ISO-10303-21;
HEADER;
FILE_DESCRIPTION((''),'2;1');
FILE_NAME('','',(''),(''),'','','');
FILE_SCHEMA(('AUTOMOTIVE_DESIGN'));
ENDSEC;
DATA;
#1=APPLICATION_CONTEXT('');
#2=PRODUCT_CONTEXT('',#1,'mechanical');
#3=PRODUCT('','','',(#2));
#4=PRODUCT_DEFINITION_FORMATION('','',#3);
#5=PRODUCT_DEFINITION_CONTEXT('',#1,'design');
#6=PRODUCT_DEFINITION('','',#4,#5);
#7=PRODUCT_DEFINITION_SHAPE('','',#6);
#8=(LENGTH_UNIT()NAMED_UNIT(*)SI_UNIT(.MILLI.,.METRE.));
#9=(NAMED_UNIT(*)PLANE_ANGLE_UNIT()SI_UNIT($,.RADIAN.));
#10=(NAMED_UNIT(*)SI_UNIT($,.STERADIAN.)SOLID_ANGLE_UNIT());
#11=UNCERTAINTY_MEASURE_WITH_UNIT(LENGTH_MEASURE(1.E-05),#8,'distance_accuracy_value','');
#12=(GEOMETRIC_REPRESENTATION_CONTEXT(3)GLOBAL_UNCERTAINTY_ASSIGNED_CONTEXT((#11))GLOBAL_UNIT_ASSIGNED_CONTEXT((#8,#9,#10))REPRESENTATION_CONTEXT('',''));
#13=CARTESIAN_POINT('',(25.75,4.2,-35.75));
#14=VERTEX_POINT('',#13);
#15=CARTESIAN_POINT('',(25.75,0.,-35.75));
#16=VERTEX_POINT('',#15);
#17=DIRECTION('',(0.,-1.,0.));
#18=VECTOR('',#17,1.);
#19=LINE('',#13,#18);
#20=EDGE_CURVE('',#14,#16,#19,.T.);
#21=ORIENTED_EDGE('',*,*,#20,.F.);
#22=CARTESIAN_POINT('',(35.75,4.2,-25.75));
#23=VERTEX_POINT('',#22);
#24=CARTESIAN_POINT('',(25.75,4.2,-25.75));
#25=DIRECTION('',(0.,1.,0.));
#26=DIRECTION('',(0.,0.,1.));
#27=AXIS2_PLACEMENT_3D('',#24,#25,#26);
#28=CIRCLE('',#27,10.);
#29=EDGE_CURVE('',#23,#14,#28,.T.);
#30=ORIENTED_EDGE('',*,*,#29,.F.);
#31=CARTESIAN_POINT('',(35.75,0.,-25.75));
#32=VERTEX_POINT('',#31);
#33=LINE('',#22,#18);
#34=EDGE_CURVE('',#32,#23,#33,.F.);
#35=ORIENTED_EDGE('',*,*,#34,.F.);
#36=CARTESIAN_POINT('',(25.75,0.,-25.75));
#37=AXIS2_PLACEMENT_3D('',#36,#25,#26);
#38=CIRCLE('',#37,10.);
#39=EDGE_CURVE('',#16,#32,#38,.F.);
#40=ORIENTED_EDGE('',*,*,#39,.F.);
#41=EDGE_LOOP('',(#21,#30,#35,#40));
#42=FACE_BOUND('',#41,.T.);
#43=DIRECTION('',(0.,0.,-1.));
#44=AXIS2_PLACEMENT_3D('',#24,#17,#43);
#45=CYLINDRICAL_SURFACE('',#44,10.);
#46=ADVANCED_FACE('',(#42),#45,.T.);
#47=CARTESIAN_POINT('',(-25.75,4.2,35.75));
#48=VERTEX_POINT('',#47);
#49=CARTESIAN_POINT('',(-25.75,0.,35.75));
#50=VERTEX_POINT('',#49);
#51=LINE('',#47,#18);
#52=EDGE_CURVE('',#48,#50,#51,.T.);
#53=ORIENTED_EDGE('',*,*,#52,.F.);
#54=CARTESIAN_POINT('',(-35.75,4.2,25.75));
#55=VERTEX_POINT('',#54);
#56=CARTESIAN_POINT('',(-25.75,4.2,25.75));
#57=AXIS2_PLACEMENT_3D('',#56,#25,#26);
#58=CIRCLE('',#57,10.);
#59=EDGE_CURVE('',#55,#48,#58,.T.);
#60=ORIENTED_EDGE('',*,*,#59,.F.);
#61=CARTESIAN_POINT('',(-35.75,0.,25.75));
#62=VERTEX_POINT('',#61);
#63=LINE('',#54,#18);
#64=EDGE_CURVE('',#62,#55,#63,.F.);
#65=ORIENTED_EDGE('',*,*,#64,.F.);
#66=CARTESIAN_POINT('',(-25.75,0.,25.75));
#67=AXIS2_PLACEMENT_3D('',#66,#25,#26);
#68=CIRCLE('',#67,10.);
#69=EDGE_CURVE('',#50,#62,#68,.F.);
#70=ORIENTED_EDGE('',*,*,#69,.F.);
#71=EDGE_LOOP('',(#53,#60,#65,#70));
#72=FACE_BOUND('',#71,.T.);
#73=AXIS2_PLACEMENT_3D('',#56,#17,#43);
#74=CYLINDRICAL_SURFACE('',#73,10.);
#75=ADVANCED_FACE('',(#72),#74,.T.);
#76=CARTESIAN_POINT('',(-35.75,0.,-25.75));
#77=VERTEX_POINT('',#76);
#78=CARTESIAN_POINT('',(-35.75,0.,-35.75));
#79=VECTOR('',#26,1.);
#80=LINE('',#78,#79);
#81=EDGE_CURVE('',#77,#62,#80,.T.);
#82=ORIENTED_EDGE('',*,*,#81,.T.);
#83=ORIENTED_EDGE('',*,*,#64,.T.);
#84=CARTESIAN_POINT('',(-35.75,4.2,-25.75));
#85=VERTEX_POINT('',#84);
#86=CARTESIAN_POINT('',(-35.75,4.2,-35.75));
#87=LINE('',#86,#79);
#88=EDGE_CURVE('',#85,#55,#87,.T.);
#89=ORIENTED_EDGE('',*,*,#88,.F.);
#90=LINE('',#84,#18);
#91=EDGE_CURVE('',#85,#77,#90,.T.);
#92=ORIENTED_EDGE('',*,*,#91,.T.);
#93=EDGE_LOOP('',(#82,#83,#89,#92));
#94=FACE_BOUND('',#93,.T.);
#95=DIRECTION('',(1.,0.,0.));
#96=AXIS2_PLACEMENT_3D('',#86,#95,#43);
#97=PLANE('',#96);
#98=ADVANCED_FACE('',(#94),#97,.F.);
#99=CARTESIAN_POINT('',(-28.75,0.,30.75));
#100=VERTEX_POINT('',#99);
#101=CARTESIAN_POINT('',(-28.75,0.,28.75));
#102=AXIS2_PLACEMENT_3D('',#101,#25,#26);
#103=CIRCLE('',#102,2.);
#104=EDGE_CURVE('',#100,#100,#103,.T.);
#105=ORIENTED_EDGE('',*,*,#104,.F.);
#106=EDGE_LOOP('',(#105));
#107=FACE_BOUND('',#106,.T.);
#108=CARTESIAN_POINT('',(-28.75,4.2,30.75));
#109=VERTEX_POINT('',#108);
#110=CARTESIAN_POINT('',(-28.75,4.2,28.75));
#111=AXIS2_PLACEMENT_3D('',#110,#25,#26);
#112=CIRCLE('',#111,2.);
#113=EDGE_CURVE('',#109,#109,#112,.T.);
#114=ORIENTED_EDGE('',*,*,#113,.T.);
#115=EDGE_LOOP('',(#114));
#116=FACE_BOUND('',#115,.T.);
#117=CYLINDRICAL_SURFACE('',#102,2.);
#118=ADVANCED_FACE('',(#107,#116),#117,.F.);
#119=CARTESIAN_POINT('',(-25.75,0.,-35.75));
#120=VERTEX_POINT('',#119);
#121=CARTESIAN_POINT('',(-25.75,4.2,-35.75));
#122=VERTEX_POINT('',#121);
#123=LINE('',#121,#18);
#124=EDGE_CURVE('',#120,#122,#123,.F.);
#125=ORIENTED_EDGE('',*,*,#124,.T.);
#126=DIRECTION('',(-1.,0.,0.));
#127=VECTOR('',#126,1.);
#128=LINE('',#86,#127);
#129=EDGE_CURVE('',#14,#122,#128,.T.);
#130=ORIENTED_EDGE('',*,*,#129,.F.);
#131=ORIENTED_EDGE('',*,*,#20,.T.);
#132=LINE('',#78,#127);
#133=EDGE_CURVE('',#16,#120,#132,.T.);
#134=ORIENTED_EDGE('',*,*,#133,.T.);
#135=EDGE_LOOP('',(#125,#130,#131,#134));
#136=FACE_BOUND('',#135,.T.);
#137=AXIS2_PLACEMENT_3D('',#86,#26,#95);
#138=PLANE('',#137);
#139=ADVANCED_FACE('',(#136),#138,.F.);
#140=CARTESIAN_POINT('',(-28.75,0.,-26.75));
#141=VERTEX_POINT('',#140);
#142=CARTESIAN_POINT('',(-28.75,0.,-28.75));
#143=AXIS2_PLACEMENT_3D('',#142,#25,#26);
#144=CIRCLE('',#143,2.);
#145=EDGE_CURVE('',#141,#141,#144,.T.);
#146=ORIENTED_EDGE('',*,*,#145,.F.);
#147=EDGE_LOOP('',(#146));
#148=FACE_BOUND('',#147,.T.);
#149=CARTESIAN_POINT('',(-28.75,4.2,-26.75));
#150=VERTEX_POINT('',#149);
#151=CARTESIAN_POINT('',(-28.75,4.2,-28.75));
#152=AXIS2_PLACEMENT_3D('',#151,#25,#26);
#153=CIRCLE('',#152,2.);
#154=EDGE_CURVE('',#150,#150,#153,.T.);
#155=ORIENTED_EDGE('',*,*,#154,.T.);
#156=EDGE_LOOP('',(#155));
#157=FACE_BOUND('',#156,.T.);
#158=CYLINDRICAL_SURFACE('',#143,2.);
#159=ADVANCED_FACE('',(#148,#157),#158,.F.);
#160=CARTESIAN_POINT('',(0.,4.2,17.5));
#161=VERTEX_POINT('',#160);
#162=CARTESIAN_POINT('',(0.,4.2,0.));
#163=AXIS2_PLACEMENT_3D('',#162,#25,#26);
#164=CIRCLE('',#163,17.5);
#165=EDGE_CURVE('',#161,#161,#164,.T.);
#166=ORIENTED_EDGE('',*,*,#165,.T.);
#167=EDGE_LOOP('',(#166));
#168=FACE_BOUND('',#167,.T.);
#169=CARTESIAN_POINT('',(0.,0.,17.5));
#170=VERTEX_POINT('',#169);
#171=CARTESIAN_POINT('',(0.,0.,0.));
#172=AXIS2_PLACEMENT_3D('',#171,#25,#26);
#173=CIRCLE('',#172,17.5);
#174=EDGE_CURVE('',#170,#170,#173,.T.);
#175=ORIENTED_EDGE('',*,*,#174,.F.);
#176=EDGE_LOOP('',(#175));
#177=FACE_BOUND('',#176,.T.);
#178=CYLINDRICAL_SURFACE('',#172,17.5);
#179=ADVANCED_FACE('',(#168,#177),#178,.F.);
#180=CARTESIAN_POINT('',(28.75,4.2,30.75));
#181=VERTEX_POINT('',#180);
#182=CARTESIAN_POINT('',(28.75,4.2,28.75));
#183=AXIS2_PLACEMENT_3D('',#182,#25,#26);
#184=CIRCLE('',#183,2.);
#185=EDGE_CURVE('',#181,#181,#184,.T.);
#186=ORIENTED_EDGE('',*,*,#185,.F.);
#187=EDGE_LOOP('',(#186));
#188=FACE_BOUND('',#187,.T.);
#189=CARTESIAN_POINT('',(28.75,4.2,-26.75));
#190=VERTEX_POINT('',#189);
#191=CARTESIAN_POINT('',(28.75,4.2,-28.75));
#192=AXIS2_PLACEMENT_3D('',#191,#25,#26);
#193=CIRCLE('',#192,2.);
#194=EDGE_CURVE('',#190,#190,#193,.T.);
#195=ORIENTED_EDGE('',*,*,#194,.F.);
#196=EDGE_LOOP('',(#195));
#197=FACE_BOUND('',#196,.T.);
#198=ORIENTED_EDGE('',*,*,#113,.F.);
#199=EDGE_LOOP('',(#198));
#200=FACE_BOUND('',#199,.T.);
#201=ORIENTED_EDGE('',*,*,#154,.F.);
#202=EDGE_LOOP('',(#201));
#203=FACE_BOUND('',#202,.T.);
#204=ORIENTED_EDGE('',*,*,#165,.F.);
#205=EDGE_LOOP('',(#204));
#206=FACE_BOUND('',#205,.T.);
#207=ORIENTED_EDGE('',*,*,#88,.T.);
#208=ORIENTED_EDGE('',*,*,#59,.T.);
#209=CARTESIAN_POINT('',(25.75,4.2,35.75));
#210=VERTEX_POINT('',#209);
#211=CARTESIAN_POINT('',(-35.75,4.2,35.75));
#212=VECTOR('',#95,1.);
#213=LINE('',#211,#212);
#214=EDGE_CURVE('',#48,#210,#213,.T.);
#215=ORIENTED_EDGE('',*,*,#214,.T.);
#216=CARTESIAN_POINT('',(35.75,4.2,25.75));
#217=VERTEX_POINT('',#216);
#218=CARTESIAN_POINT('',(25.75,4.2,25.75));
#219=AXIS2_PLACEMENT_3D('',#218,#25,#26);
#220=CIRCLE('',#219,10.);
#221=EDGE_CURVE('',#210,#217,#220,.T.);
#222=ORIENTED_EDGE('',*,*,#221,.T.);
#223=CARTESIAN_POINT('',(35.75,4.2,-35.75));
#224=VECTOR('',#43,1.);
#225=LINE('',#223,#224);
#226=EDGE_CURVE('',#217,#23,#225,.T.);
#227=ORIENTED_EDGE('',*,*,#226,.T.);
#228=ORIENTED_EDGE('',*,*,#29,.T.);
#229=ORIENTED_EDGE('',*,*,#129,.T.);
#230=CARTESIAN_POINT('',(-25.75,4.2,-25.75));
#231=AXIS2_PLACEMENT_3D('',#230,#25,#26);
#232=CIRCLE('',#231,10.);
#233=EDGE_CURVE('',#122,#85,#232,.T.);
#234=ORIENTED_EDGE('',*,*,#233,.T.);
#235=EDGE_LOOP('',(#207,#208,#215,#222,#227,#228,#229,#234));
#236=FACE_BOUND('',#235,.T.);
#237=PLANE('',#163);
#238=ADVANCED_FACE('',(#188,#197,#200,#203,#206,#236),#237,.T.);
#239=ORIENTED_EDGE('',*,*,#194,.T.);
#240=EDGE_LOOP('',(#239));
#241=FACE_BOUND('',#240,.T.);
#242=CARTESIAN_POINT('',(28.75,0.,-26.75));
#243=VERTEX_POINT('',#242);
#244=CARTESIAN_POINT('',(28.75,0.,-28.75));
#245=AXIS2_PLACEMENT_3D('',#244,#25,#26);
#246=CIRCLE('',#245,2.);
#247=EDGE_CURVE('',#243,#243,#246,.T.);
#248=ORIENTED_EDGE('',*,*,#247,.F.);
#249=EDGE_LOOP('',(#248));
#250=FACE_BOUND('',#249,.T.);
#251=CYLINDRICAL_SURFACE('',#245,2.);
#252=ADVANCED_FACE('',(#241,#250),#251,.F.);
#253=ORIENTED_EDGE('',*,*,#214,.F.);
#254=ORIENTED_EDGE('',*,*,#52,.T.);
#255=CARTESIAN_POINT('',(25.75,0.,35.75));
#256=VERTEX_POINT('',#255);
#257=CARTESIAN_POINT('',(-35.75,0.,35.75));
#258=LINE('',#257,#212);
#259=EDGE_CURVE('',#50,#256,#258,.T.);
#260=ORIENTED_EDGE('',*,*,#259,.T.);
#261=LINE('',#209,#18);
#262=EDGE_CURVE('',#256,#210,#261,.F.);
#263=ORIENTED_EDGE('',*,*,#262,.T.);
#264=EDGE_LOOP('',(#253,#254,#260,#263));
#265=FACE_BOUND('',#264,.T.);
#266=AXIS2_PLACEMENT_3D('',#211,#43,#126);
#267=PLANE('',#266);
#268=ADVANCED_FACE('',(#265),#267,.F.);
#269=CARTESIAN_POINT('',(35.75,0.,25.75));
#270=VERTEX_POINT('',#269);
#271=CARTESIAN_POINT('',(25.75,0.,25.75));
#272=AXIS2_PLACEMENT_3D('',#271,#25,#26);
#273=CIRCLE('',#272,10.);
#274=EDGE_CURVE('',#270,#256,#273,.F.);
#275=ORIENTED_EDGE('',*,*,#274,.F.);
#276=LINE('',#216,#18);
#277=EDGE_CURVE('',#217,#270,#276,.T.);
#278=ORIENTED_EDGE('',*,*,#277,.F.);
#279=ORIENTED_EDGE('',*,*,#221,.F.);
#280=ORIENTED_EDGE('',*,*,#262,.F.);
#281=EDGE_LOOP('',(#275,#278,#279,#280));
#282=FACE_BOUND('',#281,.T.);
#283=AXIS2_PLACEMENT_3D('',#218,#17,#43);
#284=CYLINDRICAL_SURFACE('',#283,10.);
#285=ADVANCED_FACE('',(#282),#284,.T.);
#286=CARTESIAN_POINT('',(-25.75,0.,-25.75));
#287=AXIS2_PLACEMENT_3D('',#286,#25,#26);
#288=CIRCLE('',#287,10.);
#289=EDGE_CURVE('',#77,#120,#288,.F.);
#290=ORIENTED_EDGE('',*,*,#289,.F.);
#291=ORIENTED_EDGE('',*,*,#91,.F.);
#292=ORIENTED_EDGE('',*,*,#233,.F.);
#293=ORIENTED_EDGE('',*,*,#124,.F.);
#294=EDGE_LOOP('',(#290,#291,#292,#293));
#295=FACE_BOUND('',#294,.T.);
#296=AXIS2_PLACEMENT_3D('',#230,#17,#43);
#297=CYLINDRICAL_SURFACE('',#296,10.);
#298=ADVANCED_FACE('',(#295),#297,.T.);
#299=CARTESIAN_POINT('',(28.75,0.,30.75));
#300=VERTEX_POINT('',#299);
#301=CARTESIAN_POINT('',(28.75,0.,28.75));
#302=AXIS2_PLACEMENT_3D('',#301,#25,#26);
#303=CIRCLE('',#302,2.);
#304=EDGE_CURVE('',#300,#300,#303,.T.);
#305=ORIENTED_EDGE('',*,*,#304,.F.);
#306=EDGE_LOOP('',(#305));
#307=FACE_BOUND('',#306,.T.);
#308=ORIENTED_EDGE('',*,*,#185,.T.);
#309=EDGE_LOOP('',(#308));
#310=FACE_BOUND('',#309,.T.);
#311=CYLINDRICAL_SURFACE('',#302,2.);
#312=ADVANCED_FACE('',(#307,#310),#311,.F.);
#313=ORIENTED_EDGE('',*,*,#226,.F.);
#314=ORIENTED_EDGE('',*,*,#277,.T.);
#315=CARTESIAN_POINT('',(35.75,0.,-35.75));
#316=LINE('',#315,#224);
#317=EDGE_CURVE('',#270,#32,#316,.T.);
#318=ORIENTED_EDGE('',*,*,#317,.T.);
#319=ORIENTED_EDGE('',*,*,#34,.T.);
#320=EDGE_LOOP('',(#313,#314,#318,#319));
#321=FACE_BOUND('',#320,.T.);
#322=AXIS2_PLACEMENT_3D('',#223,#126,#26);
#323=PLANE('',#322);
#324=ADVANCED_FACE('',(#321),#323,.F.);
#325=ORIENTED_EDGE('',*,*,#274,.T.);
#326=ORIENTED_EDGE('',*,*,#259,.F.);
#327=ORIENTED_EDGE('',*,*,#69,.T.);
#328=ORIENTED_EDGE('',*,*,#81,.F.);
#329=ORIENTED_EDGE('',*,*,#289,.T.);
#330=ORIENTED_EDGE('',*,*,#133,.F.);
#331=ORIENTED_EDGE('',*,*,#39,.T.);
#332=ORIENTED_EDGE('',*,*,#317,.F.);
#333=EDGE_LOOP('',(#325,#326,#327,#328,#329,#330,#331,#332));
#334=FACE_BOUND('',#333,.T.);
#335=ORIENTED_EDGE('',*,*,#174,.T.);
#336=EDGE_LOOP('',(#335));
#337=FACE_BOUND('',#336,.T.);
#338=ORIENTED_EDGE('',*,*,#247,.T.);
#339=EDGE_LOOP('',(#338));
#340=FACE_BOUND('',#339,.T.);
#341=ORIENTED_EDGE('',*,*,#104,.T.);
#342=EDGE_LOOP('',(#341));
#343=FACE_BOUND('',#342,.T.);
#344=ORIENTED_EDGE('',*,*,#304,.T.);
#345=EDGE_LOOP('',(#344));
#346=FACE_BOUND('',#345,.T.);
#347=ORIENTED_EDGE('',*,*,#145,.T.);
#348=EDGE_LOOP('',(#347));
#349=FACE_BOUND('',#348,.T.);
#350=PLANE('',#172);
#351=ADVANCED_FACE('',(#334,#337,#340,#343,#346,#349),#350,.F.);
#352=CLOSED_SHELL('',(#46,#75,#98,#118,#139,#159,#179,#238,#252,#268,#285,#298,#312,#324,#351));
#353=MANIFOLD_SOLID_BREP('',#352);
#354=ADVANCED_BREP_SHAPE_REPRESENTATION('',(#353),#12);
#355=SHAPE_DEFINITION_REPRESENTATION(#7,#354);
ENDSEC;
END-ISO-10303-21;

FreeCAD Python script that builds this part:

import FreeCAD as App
import Part
import Sketcher

V = App.Vector


def edges_at(feature, points):
    """Names of the edges that pass closest to the given points."""
    edges = feature.Shape.Edges
    near = lambda p: min(range(len(edges)), key=lambda i: edges[i].distToShape(Part.Vertex(*p))[0])
    return sorted({f"Edge{near(p) + 1}" for p in points})

doc = App.newDocument("Part")
body = doc.addObject("PartDesign::Body", "Body")

sketch1 = body.newObject("Sketcher::SketchObject", "Sketch")
sketch1.AttachmentSupport = (doc.getObject("XZ_Plane"), [""])
sketch1.MapMode = "FlatFace"
sketch1.addGeometry(Part.LineSegment(V(-36, -36, 0), V(-36, 36, 0)), False)
sketch1.addGeometry(Part.LineSegment(V(-36, 36, 0), V(36, 36, 0)), False)
sketch1.addGeometry(Part.LineSegment(V(36, 36, 0), V(36, -36, 0)), False)
sketch1.addGeometry(Part.LineSegment(V(36, -36, 0), V(-36, -36, 0)), False)
sketch1.addConstraint(Sketcher.Constraint("Coincident", 0, 2, 1, 1))
sketch1.addConstraint(Sketcher.Constraint("Coincident", 1, 2, 2, 1))
sketch1.addConstraint(Sketcher.Constraint("Coincident", 2, 2, 3, 1))
sketch1.addConstraint(Sketcher.Constraint("Coincident", 3, 2, 0, 1))
sketch1.addConstraint(Sketcher.Constraint("Vertical", 0))
sketch1.addConstraint(Sketcher.Constraint("Horizontal", 1))
sketch1.addConstraint(Sketcher.Constraint("Vertical", 2))
sketch1.addConstraint(Sketcher.Constraint("Horizontal", 3))
sketch1.addConstraint(Sketcher.Constraint("Symmetric", 0, 2, 2, 2, -1, 1))
sketch1.addConstraint(Sketcher.Constraint("Equal", 3, 0))
sketch1.addConstraint(Sketcher.Constraint("DistanceX", 1, 1, 1, 2, 71.5))
pad1 = body.newObject("PartDesign::Pad", "Pad")
pad1.Profile = sketch1
pad1.Length = 4.2
pad1.Reversed = True
doc.recompute()

fillet = body.newObject("PartDesign::Fillet", "Fillet")
fillet.Base = (pad1, edges_at(pad1, [
    (35.75, 2.1, 35.75),
    (-35.75, 2.1, 35.75),
    (-35.75, 2.1, -35.75),
    (35.75, 2.1, -35.75),
]))
fillet.Radius = 10

sketch2 = body.newObject("Sketcher::SketchObject", "Sketch001")
sketch2.AttachmentSupport = (doc.getObject("XZ_Plane"), [""])
sketch2.MapMode = "FlatFace"
sketch2.AttachmentOffset = App.Placement(V(0, 0, -4.2), App.Rotation())
sketch2.addGeometry(Part.Circle(V(0, 0, 0), V(0, 0, 1), 18), False)
sketch2.addConstraint(Sketcher.Constraint("Coincident", 0, 3, -1, 1))
sketch2.addConstraint(Sketcher.Constraint("Diameter", 0, 35.0))
pocket1 = body.newObject("PartDesign::Pocket", "Pocket")
pocket1.Profile = sketch2
pocket1.Type = "ThroughAll"
pocket1.Reversed = True

sketch3 = body.newObject("Sketcher::SketchObject", "Sketch002")
sketch3.AttachmentSupport = (doc.getObject("XZ_Plane"), [""])
sketch3.MapMode = "FlatFace"
sketch3.AttachmentOffset = App.Placement(V(0, 0, -4.2), App.Rotation())
sketch3.addGeometry(Part.Circle(V(-28.8, -28.8, 0), V(0, 0, 1), 2), False)
sketch3.addGeometry(Part.Circle(V(28.8, -28.8, 0), V(0, 0, 1), 2), False)
sketch3.addGeometry(Part.Circle(V(-28.8, 28.8, 0), V(0, 0, 1), 2), False)
sketch3.addGeometry(Part.Circle(V(28.8, 28.8, 0), V(0, 0, 1), 2), False)
sketch3.addConstraint(Sketcher.Constraint("Equal", 0, 1))
sketch3.addConstraint(Sketcher.Constraint("Equal", 1, 2))
sketch3.addConstraint(Sketcher.Constraint("Equal", 2, 3))
sketch3.addConstraint(Sketcher.Constraint("Symmetric", 1, 3, 2, 3, -1, 1))
sketch3.addConstraint(Sketcher.Constraint("Symmetric", 0, 3, 3, 3, -1, 1))
sketch3.addConstraint(Sketcher.Constraint("Symmetric", 0, 3, 1, 3, -2))
sketch3.addConstraint(Sketcher.Constraint("Diameter", 0, 4.0))
sketch3.addConstraint(Sketcher.Constraint("DistanceX", 0, 3, 1, 3, 57.5))
sketch3.addConstraint(Sketcher.Constraint("DistanceY", 0, 3, 2, 3, 57.5))
pocket2 = body.newObject("PartDesign::Pocket", "Pocket001")
pocket2.Profile = sketch3
pocket2.Type = "ThroughAll"
pocket2.Reversed = True

doc.recompute()
